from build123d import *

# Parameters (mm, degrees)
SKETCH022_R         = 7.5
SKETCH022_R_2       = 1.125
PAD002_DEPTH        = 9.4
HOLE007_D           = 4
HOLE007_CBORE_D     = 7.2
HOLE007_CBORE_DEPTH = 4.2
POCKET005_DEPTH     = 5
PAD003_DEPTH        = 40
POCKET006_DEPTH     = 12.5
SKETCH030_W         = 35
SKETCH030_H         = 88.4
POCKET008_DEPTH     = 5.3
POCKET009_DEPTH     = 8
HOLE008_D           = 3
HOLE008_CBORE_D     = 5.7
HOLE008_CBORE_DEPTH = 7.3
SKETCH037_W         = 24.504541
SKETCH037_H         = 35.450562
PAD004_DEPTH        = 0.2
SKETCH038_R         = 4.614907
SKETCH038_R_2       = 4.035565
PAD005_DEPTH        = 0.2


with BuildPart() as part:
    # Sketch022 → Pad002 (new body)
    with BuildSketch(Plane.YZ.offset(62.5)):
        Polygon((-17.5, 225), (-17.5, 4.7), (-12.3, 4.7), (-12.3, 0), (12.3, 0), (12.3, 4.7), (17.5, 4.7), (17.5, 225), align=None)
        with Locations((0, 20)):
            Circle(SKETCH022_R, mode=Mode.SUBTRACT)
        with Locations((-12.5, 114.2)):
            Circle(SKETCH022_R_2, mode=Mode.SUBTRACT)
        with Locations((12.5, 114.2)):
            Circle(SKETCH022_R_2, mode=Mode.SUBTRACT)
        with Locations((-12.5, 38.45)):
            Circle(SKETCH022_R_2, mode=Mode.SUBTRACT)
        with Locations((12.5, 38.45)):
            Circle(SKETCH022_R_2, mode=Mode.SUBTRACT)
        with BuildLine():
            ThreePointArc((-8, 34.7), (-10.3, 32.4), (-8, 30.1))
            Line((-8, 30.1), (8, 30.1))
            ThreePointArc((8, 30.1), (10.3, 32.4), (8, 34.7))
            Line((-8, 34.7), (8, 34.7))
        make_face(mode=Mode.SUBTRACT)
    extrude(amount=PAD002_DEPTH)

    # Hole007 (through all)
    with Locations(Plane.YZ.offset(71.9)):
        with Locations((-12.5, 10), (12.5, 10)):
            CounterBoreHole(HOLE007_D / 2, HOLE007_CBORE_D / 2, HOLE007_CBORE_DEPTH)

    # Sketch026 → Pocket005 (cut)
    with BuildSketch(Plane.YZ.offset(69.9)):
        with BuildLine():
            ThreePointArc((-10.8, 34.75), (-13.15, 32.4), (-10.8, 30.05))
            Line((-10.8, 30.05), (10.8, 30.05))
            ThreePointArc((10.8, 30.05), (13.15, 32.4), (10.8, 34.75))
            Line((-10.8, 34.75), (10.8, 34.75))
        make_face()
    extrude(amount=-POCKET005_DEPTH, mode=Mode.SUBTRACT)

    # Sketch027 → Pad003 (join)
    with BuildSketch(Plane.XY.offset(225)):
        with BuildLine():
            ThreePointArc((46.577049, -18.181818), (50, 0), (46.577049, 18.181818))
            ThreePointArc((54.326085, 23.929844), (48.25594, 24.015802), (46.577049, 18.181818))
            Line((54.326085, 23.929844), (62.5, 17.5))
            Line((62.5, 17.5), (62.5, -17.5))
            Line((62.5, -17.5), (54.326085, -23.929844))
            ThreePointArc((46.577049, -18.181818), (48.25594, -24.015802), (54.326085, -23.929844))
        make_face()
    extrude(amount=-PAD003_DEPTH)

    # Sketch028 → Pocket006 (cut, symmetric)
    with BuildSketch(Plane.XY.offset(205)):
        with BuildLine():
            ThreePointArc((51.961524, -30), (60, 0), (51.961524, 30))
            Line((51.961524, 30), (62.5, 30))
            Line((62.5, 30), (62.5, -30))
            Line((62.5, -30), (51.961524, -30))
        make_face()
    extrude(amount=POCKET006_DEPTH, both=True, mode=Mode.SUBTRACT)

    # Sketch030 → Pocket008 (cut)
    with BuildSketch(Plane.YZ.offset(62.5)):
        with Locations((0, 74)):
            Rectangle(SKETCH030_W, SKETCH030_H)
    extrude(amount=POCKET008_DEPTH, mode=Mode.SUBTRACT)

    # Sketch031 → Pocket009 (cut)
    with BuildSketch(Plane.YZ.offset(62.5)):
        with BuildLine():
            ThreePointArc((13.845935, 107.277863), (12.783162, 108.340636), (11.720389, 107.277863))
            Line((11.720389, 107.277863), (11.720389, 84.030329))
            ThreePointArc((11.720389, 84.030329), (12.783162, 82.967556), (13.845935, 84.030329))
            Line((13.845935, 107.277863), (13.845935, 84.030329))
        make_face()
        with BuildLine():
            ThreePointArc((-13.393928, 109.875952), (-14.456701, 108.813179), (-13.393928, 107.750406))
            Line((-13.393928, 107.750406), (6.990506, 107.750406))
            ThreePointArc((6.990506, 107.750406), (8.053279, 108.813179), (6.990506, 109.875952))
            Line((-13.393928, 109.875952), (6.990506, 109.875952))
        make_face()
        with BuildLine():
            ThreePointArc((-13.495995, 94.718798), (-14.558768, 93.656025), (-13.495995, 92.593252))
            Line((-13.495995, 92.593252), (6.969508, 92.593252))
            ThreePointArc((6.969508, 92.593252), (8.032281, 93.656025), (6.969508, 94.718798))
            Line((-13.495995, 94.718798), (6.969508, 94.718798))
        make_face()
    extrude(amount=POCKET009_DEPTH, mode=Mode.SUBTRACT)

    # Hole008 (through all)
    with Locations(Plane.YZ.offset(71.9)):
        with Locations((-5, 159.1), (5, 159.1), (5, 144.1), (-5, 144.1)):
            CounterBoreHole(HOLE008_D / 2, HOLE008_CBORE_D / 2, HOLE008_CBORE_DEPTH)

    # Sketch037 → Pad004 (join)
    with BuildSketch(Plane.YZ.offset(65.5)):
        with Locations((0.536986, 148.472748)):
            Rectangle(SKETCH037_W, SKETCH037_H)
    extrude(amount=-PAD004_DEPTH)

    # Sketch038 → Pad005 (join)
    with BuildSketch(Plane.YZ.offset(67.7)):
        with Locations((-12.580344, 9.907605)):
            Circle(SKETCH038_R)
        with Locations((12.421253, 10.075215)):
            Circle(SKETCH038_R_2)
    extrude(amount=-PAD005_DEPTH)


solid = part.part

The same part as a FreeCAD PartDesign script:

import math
import FreeCAD as App
import Part
import Sketcher

doc = App.newDocument("Part")
body = doc.addObject("PartDesign::Body", "Body")

# Sketch on YZ plane
sketch1 = doc.addObject("Sketcher::SketchObject", "Sketch")
body.addObject(sketch1)
sketch1.AttachmentSupport = (doc.YZ_Plane, [""])
sketch1.MapMode = "FlatFace"
sketch1.AttachmentOffset = App.Placement(App.Vector(0, 0, 62.5), App.Rotation())
sketch1.addGeometry(Part.LineSegment(App.Vector(-17.5, 225, 0), App.Vector(-17.5, 4.7, 0)), False)
sketch1.addGeometry(Part.LineSegment(App.Vector(-17.5, 4.7, 0), App.Vector(-12.3, 4.7, 0)), False)
sketch1.addGeometry(Part.LineSegment(App.Vector(-12.3, 4.7, 0), App.Vector(-12.3, 0, 0)), False)
sketch1.addGeometry(Part.LineSegment(App.Vector(-12.3, 0, 0), App.Vector(12.3, 0, 0)), False)
sketch1.addGeometry(Part.LineSegment(App.Vector(12.3, 0, 0), App.Vector(12.3, 4.7, 0)), False)
sketch1.addGeometry(Part.LineSegment(App.Vector(12.3, 4.7, 0), App.Vector(17.5, 4.7, 0)), False)
sketch1.addGeometry(Part.LineSegment(App.Vector(17.5, 4.7, 0), App.Vector(17.5, 225, 0)), False)
sketch1.addGeometry(Part.LineSegment(App.Vector(17.5, 225, 0), App.Vector(-17.5, 225, 0)), False)
sketch1.addGeometry(Part.Circle(App.Vector(-12.5, 38.5, 0), App.Vector(0, 0, 1), 1.1), False)
sketch1.addGeometry(Part.Circle(App.Vector(0, 20, 0), App.Vector(0, 0, 1), 7.5), False)
sketch1.addGeometry(Part.ArcOfCircle(Part.Circle(App.Vector(-8, 32.4, 0), App.Vector(0, 0, 1), 2.3), math.radians(90), math.radians(270)), False)
sketch1.addGeometry(Part.LineSegment(App.Vector(-8, 34.7, 0), App.Vector(8, 34.7, 0)), False)
sketch1.addGeometry(Part.ArcOfCircle(Part.Circle(App.Vector(8, 32.4, 0), App.Vector(0, 0, 1), 2.3), math.radians(-90), math.radians(90)), False)
sketch1.addGeometry(Part.LineSegment(App.Vector(8, 30.1, 0), App.Vector(-8, 30.1, 0)), False)
sketch1.addGeometry(Part.Circle(App.Vector(12.5, 38.5, 0), App.Vector(0, 0, 1), 1.1), False)
sketch1.addGeometry(Part.Circle(App.Vector(-12.5, 114.2, 0), App.Vector(0, 0, 1), 1.1), False)
sketch1.addGeometry(Part.Circle(App.Vector(12.5, 114.2, 0), App.Vector(0, 0, 1), 1.1), False)
sketch1.addConstraint(Sketcher.Constraint("Coincident", 0, 2, 1, 1))
sketch1.addConstraint(Sketcher.Constraint("Coincident", 1, 2, 2, 1))
sketch1.addConstraint(Sketcher.Constraint("Coincident", 2, 2, 3, 1))
sketch1.addConstraint(Sketcher.Constraint("Coincident", 3, 2, 4, 1))
sketch1.addConstraint(Sketcher.Constraint("Coincident", 4, 2, 5, 1))
sketch1.addConstraint(Sketcher.Constraint("Coincident", 5, 2, 6, 1))
sketch1.addConstraint(Sketcher.Constraint("Coincident", 6, 2, 7, 1))
sketch1.addConstraint(Sketcher.Constraint("Coincident", 7, 2, 0, 1))
sketch1.addConstraint(Sketcher.Constraint("Tangent", 10, 1, 11, 1))
sketch1.addConstraint(Sketcher.Constraint("Tangent", 11, 2, 12, 2))
sketch1.addConstraint(Sketcher.Constraint("Tangent", 12, 1, 13, 1))
sketch1.addConstraint(Sketcher.Constraint("Tangent", 13, 2, 10, 2))
sketch1.addConstraint(Sketcher.Constraint("Vertical", 0))
sketch1.addConstraint(Sketcher.Constraint("Horizontal", 1))
sketch1.addConstraint(Sketcher.Constraint("Vertical", 2))
sketch1.addConstraint(Sketcher.Constraint("Horizontal", 3))
sketch1.addConstraint(Sketcher.Constraint("Vertical", 4))
sketch1.addConstraint(Sketcher.Constraint("Horizontal", 5))
sketch1.addConstraint(Sketcher.Constraint("Vertical", 6))
sketch1.addConstraint(Sketcher.Constraint("Horizontal", 7))
sketch1.addConstraint(Sketcher.Constraint("Horizontal", 11))
sketch1.addConstraint(Sketcher.Constraint("Horizontal", 13))
sketch1.addConstraint(Sketcher.Constraint("Equal", 8, 14))
sketch1.addConstraint(Sketcher.Constraint("Equal", 14, 15))
sketch1.addConstraint(Sketcher.Constraint("Equal", 15, 16))
sketch1.addConstraint(Sketcher.Constraint("Symmetric", 2, 2, 3, 2, -1, 1))
sketch1.addConstraint(Sketcher.Constraint("Symmetric", 8, 3, 14, 3, -2))
sketch1.addConstraint(Sketcher.Constraint("Symmetric", 15, 3, 16, 3, -2))
sketch1.addConstraint(Sketcher.Constraint("Symmetric", 0, 2, 5, 2, -2))
sketch1.addConstraint(Sketcher.Constraint("PointOnObject", 9, 3, -2))
sketch1.addConstraint(Sketcher.Constraint("Vertical", 8, 3, 15, 3))
sketch1.addConstraint(Sketcher.Constraint("Diameter", 9, 15.0))
sketch1.addConstraint(Sketcher.Constraint("Radius", 10, 2.3))
sketch1.addConstraint(Sketcher.Constraint("Diameter", 8, 2.25))
sketch1.addConstraint(Sketcher.Constraint("DistanceX", 7, 2, 7, 1, 35.0))
sketch1.addConstraint(Sketcher.Constraint("DistanceX", 11, 1, 11, 2, 16.0))
sketch1.addConstraint(Sketcher.Constraint("DistanceX", 1, 1, 1, 2, 5.2))
sketch1.addConstraint(Sketcher.Constraint("DistanceY", 0, 2, 0, 1, 220.3))
sketch1.addConstraint(Sketcher.Constraint("DistanceY", 2, 2, 2, 1, 4.7))
sketch1.addConstraint(Sketcher.Constraint("DistanceY", -1, 1, 9, 3, 20.0))
sketch1.addConstraint(Sketcher.Constraint("DistanceX", 10, 3, -1, 1, 8.0))
sketch1.addConstraint(Sketcher.Constraint("DistanceX", 8, 3, 14, 3, 25.0))
sketch1.addConstraint(Sketcher.Constraint("DistanceY", -1, 1, 10, 3, 32.4))
sketch1.addConstraint(Sketcher.Constraint("DistanceY", -1, 1, 15, 3, 114.2))
sketch1.addConstraint(Sketcher.Constraint("DistanceY", -1, 1, 8, 3, 38.45))
pad1 = doc.addObject("PartDesign::Pad", "Pad")
body.addObject(pad1)
pad1.Profile = sketch1
pad1.Length = 9.4

# Sketch on YZ plane
sketch2 = doc.addObject("Sketcher::SketchObject", "Sketch001")
body.addObject(sketch2)
sketch2.AttachmentSupport = (doc.YZ_Plane, [""])
sketch2.MapMode = "FlatFace"
sketch2.AttachmentOffset = App.Placement(App.Vector(0, 0, 71.9), App.Rotation())
sketch2.addGeometry(Part.Circle(App.Vector(-12.5, 10, 0), App.Vector(0, 0, 1), 2), False)
sketch2.addGeometry(Part.Circle(App.Vector(12.5, 10, 0), App.Vector(0, 0, 1), 2), False)
sketch2.addConstraint(Sketcher.Constraint("Equal", 0, 1))
sketch2.addConstraint(Sketcher.Constraint("Symmetric", 0, 3, 1, 3, -2))
sketch2.addConstraint(Sketcher.Constraint("Diameter", 0, 4.0))
sketch2.addConstraint(Sketcher.Constraint("DistanceY", -1, 1, 0, 3, 10.0))
sketch2.addConstraint(Sketcher.Constraint("DistanceX", 0, 3, 1, 3, 25.0))
doc.recompute()
hole = doc.addObject("PartDesign::Hole", "Hole")
body.addObject(hole)
hole.Profile = sketch2
hole.ThreadType = "None"
hole.Diameter = 4
hole.DepthType = "ThroughAll"
hole.HoleCutType = "Counterbore"
hole.HoleCutDiameter = 7.2
hole.HoleCutDepth = 4.2

# Sketch on YZ plane
sketch3 = doc.addObject("Sketcher::SketchObject", "Sketch002")
body.addObject(sketch3)
sketch3.AttachmentSupport = (doc.YZ_Plane, [""])
sketch3.MapMode = "FlatFace"
sketch3.AttachmentOffset = App.Placement(App.Vector(0, 0, 69.9), App.Rotation())
sketch3.addGeometry(Part.ArcOfCircle(Part.Circle(App.Vector(-10.8, 32.4, 0), App.Vector(0, 0, 1), 2.4), math.radians(90), math.radians(270)), False)
sketch3.addGeometry(Part.LineSegment(App.Vector(-10.8, 30.1, 0), App.Vector(10.8, 30.1, 0)), False)
sketch3.addGeometry(Part.ArcOfCircle(Part.Circle(App.Vector(10.8, 32.4, 0), App.Vector(0, 0, 1), 2.4), math.radians(-90), math.radians(90)), False)
sketch3.addGeometry(Part.LineSegment(App.Vector(10.8, 34.8, 0), App.Vector(-10.8, 34.8, 0)), False)
sketch3.addConstraint(Sketcher.Constraint("Tangent", 0, 2, 1, 1))
sketch3.addConstraint(Sketcher.Constraint("Tangent", 1, 2, 2, 1))
sketch3.addConstraint(Sketcher.Constraint("Tangent", 2, 2, 3, 1))
sketch3.addConstraint(Sketcher.Constraint("Tangent", 3, 2, 0, 1))
sketch3.addConstraint(Sketcher.Constraint("Horizontal", 1))
sketch3.addConstraint(Sketcher.Constraint("Horizontal", 3))
sketch3.addConstraint(Sketcher.Constraint("Radius", 0, 2.35))
sketch3.addConstraint(Sketcher.Constraint("DistanceX", 1, 1, 1, 2, 21.6))
sketch3.addConstraint(Sketcher.Constraint("DistanceX", 0, 3, -1, 1, 10.8))
sketch3.addConstraint(Sketcher.Constraint("DistanceY", -1, 1, 0, 3, 32.4))
pocket1 = doc.addObject("PartDesign::Pocket", "Pocket")
body.addObject(pocket1)
pocket1.Profile = sketch3
pocket1.Length = 5

# Sketch on XY plane
sketch4 = doc.addObject("Sketcher::SketchObject", "Sketch003")
body.addObject(sketch4)
sketch4.AttachmentSupport = (doc.XY_Plane, [""])
sketch4.MapMode = "FlatFace"
sketch4.AttachmentOffset = App.Placement(App.Vector(0, 0, 225), App.Rotation())
sketch4.addGeometry(Part.ArcOfCircle(Part.Circle(App.Vector(0, 0, 0), App.Vector(0, 0, 1), 50), math.radians(-21), math.radians(21)), False)
sketch4.addGeometry(Part.ArcOfCircle(Part.Circle(App.Vector(51, -20, 0), App.Vector(0, 0, 1), 5), math.radians(159), math.radians(308)), False)
sketch4.addGeometry(Part.LineSegment(App.Vector(54, -24, 0), App.Vector(62, -18, 0)), False)
sketch4.addGeometry(Part.LineSegment(App.Vector(62, -18, 0), App.Vector(62, 18, 0)), False)
sketch4.addGeometry(Part.LineSegment(App.Vector(62, 18, 0), App.Vector(54, 24, 0)), False)
sketch4.addGeometry(Part.ArcOfCircle(Part.Circle(App.Vector(51, 20, 0), App.Vector(0, 0, 1), 5), math.radians(52), math.radians(201)), False)
sketch4.addConstraint(Sketcher.Constraint("Tangent", 0, 1, 1, 1))
sketch4.addConstraint(Sketcher.Constraint("Tangent", 1, 2, 2, 1))
sketch4.addConstraint(Sketcher.Constraint("Coincident", 2, 2, 3, 1))
sketch4.addConstraint(Sketcher.Constraint("Coincident", 3, 2, 4, 1))
sketch4.addConstraint(Sketcher.Constraint("Tangent", 4, 2, 5, 1))
sketch4.addConstraint(Sketcher.Constraint("Tangent", 5, 2, 0, 2))
sketch4.addConstraint(Sketcher.Constraint("Vertical", 3))
sketch4.addConstraint(Sketcher.Constraint("Coincident", 0, 3, -1, 1))
sketch4.addConstraint(Sketcher.Constraint("Equal", 1, 5))
sketch4.addConstraint(Sketcher.Constraint("Symmetric", 1, 2, 4, 2, -1))
sketch4.addConstraint(Sketcher.Constraint("Radius", 0, 50.0))
sketch4.addConstraint(Sketcher.Constraint("Radius", 1, 5.0))
sketch4.addConstraint(Sketcher.Constraint("DistanceY", 3, 1, 3, 2, 35.0))
sketch4.addConstraint(Sketcher.Constraint("DistanceY", 1, 3, -1, 1, 20.0))
sketch4.addConstraint(Sketcher.Constraint("DistanceX", -1, 1, 2, 2, 62.5))
pad2 = doc.addObject("PartDesign::Pad", "Pad001")
body.addObject(pad2)
pad2.Profile = sketch4
pad2.Length = 40
pad2.Reversed = True

# Sketch on XY plane
sketch5 = doc.addObject("Sketcher::SketchObject", "Sketch004")
body.addObject(sketch5)
sketch5.AttachmentSupport = (doc.XY_Plane, [""])
sketch5.MapMode = "FlatFace"
sketch5.AttachmentOffset = App.Placement(App.Vector(0, 0, 205), App.Rotation())
sketch5.addGeometry(Part.ArcOfCircle(Part.Circle(App.Vector(0, 0, 0), App.Vector(0, 0, 1), 60), math.radians(-30), math.radians(30)), False)
sketch5.addGeometry(Part.LineSegment(App.Vector(52, -30, 0), App.Vector(62, -30, 0)), False)
sketch5.addGeometry(Part.LineSegment(App.Vector(62, -30, 0), App.Vector(62, 30, 0)), False)
sketch5.addGeometry(Part.LineSegment(App.Vector(62, 30, 0), App.Vector(52, 30, 0)), False)
sketch5.addConstraint(Sketcher.Constraint("Coincident", 0, 1, 1, 1))
sketch5.addConstraint(Sketcher.Constraint("Coincident", 1, 2, 2, 1))
sketch5.addConstraint(Sketcher.Constraint("Coincident", 2, 2, 3, 1))
sketch5.addConstraint(Sketcher.Constraint("Coincident", 3, 2, 0, 2))
sketch5.addConstraint(Sketcher.Constraint("Horizontal", 1))
sketch5.addConstraint(Sketcher.Constraint("Vertical", 2))
sketch5.addConstraint(Sketcher.Constraint("Horizontal", 3))
sketch5.addConstraint(Sketcher.Constraint("Coincident", 0, 3, -1, 1))
sketch5.addConstraint(Sketcher.Constraint("Vertical", 0, 1, 3, 2))
sketch5.addConstraint(Sketcher.Constraint("Radius", 0, 59.999999))
sketch5.addConstraint(Sketcher.Constraint("DistanceY", 2, 1, 2, 2, 60.0))
sketch5.addConstraint(Sketcher.Constraint("DistanceX", -1, 1, 1, 2, 62.5))
pocket2 = doc.addObject("PartDesign::Pocket", "Pocket001")
body.addObject(pocket2)
pocket2.Profile = sketch5
pocket2.Length = 25
pocket2.Midplane = True

# Sketch on YZ plane
sketch6 = doc.addObject("Sketcher::SketchObject", "Sketch005")
body.addObject(sketch6)
sketch6.AttachmentSupport = (doc.YZ_Plane, [""])
sketch6.MapMode = "FlatFace"
sketch6.AttachmentOffset = App.Placement(App.Vector(0, 0, 62.5), App.Rotation())
sketch6.addGeometry(Part.LineSegment(App.Vector(-18, 118, 0), App.Vector(-18, 30, 0)), False)
sketch6.addGeometry(Part.LineSegment(App.Vector(-18, 30, 0), App.Vector(18, 30, 0)), False)
sketch6.addGeometry(Part.LineSegment(App.Vector(18, 30, 0), App.Vector(18, 118, 0)), False)
sketch6.addGeometry(Part.LineSegment(App.Vector(18, 118, 0), App.Vector(-18, 118, 0)), False)
sketch6.addConstraint(Sketcher.Constraint("Coincident", 0, 2, 1, 1))
sketch6.addConstraint(Sketcher.Constraint("Coincident", 1, 2, 2, 1))
sketch6.addConstraint(Sketcher.Constraint("Coincident", 2, 2, 3, 1))
sketch6.addConstraint(Sketcher.Constraint("Coincident", 3, 2, 0, 1))
sketch6.addConstraint(Sketcher.Constraint("Vertical", 0))
sketch6.addConstraint(Sketcher.Constraint("Horizontal", 1))
sketch6.addConstraint(Sketcher.Constraint("Vertical", 2))
sketch6.addConstraint(Sketcher.Constraint("Horizontal", 3))
sketch6.addConstraint(Sketcher.Constraint("DistanceX", 1, 1, 1, 2, 35.0))
sketch6.addConstraint(Sketcher.Constraint("DistanceY", 0, 2, 0, 1, 88.4))
sketch6.addConstraint(Sketcher.Constraint("DistanceX", 0, 2, -1, 1, 17.5))
sketch6.addConstraint(Sketcher.Constraint("DistanceY", -1, 1, 0, 2, 29.8))
pocket3 = doc.addObject("PartDesign::Pocket", "Pocket002")
body.addObject(pocket3)
pocket3.Profile = sketch6
pocket3.Length = 5.3
pocket3.Reversed = True

# Sketch on YZ plane
sketch7 = doc.addObject("Sketcher::SketchObject", "Sketch006")
body.addObject(sketch7)
sketch7.AttachmentSupport = (doc.YZ_Plane, [""])
sketch7.MapMode = "FlatFace"
sketch7.AttachmentOffset = App.Placement(App.Vector(0, 0, 62.5), App.Rotation())
sketch7.addGeometry(Part.ArcOfCircle(Part.Circle(App.Vector(12.8, 107.3, 0), App.Vector(0, 0, 1), 1.1), math.radians(0), math.radians(180)), False)
sketch7.addGeometry(Part.LineSegment(App.Vector(11.7, 107.3, 0), App.Vector(11.7, 84, 0)), False)
sketch7.addGeometry(Part.ArcOfCircle(Part.Circle(App.Vector(12.8, 84, 0), App.Vector(0, 0, 1), 1.1), math.radians(180), math.radians(360)), False)
sketch7.addGeometry(Part.LineSegment(App.Vector(13.8, 84, 0), App.Vector(13.8, 107.3, 0)), False)
sketch7.addGeometry(Part.ArcOfCircle(Part.Circle(App.Vector(-13.4, 108.8, 0), App.Vector(0, 0, 1), 1.1), math.radians(90), math.radians(270)), False)
sketch7.addGeometry(Part.LineSegment(App.Vector(-13.4, 107.8, 0), App.Vector(7, 107.8, 0)), False)
sketch7.addGeometry(Part.ArcOfCircle(Part.Circle(App.Vector(7, 108.8, 0), App.Vector(0, 0, 1), 1.1), math.radians(-90), math.radians(90)), False)
sketch7.addGeometry(Part.LineSegment(App.Vector(7, 109.9, 0), App.Vector(-13.4, 109.9, 0)), False)
sketch7.addGeometry(Part.ArcOfCircle(Part.Circle(App.Vector(-13.5, 93.7, 0), App.Vector(0, 0, 1), 1.1), math.radians(90), math.radians(270)), False)
sketch7.addGeometry(Part.LineSegment(App.Vector(-13.5, 92.6, 0), App.Vector(7, 92.6, 0)), False)
sketch7.addGeometry(Part.ArcOfCircle(Part.Circle(App.Vector(7, 93.7, 0), App.Vector(0, 0, 1), 1.1), math.radians(-90), math.radians(90)), False)
sketch7.addGeometry(Part.LineSegment(App.Vector(7, 94.7, 0), App.Vector(-13.5, 94.7, 0)), False)
sketch7.addConstraint(Sketcher.Constraint("Tangent", 0, 2, 1, 1))
sketch7.addConstraint(Sketcher.Constraint("Tangent", 1, 2, 2, 1))
sketch7.addConstraint(Sketcher.Constraint("Tangent", 2, 2, 3, 1))
sketch7.addConstraint(Sketcher.Constraint("Tangent", 3, 2, 0, 1))
sketch7.addConstraint(Sketcher.Constraint("Tangent", 4, 2, 5, 1))
sketch7.addConstraint(Sketcher.Constraint("Tangent", 5, 2, 6, 1))
sketch7.addConstraint(Sketcher.Constraint("Tangent", 6, 2, 7, 1))
sketch7.addConstraint(Sketcher.Constraint("Tangent", 7, 2, 4, 1))
sketch7.addConstraint(Sketcher.Constraint("Tangent", 8, 2, 9, 1))
sketch7.addConstraint(Sketcher.Constraint("Tangent", 9, 2, 10, 1))
sketch7.addConstraint(Sketcher.Constraint("Tangent", 10, 2, 11, 1))
sketch7.addConstraint(Sketcher.Constraint("Tangent", 11, 2, 8, 1))
sketch7.addConstraint(Sketcher.Constraint("Vertical", 1))
sketch7.addConstraint(Sketcher.Constraint("Vertical", 3))
sketch7.addConstraint(Sketcher.Constraint("Horizontal", 5))
sketch7.addConstraint(Sketcher.Constraint("Horizontal", 7))
sketch7.addConstraint(Sketcher.Constraint("Horizontal", 9))
sketch7.addConstraint(Sketcher.Constraint("Horizontal", 11))
sketch7.addConstraint(Sketcher.Constraint("Equal", 2, 4))
sketch7.addConstraint(Sketcher.Constraint("Equal", 6, 8))
sketch7.addConstraint(Sketcher.Constraint("Radius", 0, 1.062773))
sketch7.addConstraint(Sketcher.Constraint("DistanceY", -1, 1, 11, 2, 94.718798))
sketch7.addConstraint(Sketcher.Constraint("DistanceX", 8, 3, 6, 3, 20.486501))
sketch7.addConstraint(Sketcher.Constraint("DistanceY", 8, 2, 7, 2, 17.2827))
sketch7.addConstraint(Sketcher.Constraint("DistanceX", 5, 1, 5, 2, 20.384434))
sketch7.addConstraint(Sketcher.Constraint("DistanceX", 9, 1, 9, 2, 20.465503))
sketch7.addConstraint(Sketcher.Constraint("DistanceY", 1, 2, 1, 1, 23.247534))
sketch7.addConstraint(Sketcher.Constraint("DistanceY", -1, 1, 2, 3, 84.030329))
sketch7.addConstraint(Sketcher.Constraint("DistanceX", 4, 3, -1, 1, 13.393928))
sketch7.addConstraint(Sketcher.Constraint("DistanceX", -1, 1, 0, 2, 11.720389))
pocket4 = doc.addObject("PartDesign::Pocket", "Pocket003")
body.addObject(pocket4)
pocket4.Profile = sketch7
pocket4.Length = 8
pocket4.Reversed = True

# Sketch on YZ plane
sketch8 = doc.addObject("Sketcher::SketchObject", "Sketch007")
body.addObject(sketch8)
sketch8.AttachmentSupport = (doc.YZ_Plane, [""])
sketch8.MapMode = "FlatFace"
sketch8.AttachmentOffset = App.Placement(App.Vector(0, 0, 71.9), App.Rotation())
sketch8.addGeometry(Part.Circle(App.Vector(-5, 159.1, 0), App.Vector(0, 0, 1), 1.5), False)
sketch8.addGeometry(Part.Circle(App.Vector(5, 159.1, 0), App.Vector(0, 0, 1), 1.5), False)
sketch8.addGeometry(Part.Circle(App.Vector(5, 144.1, 0), App.Vector(0, 0, 1), 1.5), False)
sketch8.addGeometry(Part.Circle(App.Vector(-5, 144.1, 0), App.Vector(0, 0, 1), 1.5), False)
sketch8.addConstraint(Sketcher.Constraint("Equal", 0, 1))
sketch8.addConstraint(Sketcher.Constraint("Equal", 1, 2))
sketch8.addConstraint(Sketcher.Constraint("Equal", 2, 3))
sketch8.addConstraint(Sketcher.Constraint("Symmetric", 0, 3, 1, 3, -2))
sketch8.addConstraint(Sketcher.Constraint("Symmetric", 2, 3, 3, 3, -2))
sketch8.addConstraint(Sketcher.Constraint("Vertical", 1, 3, 2, 3))
sketch8.addConstraint(Sketcher.Constraint("Diameter", 0, 3.0))
sketch8.addConstraint(Sketcher.Constraint("DistanceX", 0, 3, -1, 1, 5.0))
sketch8.addConstraint(Sketcher.Constraint("DistanceY", 2, 3, 1, 3, 15.0))
sketch8.addConstraint(Sketcher.Constraint("DistanceY", -1, 1, 0, 3, 159.1))
doc.recompute()
hole2 = doc.addObject("PartDesign::Hole", "Hole001")
body.addObject(hole2)
hole2.Profile = sketch8
hole2.ThreadType = "None"
hole2.Diameter = 3
hole2.DepthType = "ThroughAll"
hole2.HoleCutType = "Counterbore"
hole2.HoleCutDiameter = 5.7
hole2.HoleCutDepth = 7.3

# Sketch on YZ plane
sketch9 = doc.addObject("Sketcher::SketchObject", "Sketch008")
body.addObject(sketch9)
sketch9.AttachmentSupport = (doc.YZ_Plane, [""])
sketch9.MapMode = "FlatFace"
sketch9.AttachmentOffset = App.Placement(App.Vector(0, 0, 65.5), App.Rotation())
sketch9.addGeometry(Part.LineSegment(App.Vector(-12, 166, 0), App.Vector(-12, 131, 0)), False)
sketch9.addGeometry(Part.LineSegment(App.Vector(-12, 131, 0), App.Vector(13, 131, 0)), False)
sketch9.addGeometry(Part.LineSegment(App.Vector(13, 131, 0), App.Vector(13, 166, 0)), False)
sketch9.addGeometry(Part.LineSegment(App.Vector(13, 166, 0), App.Vector(-12, 166, 0)), False)
sketch9.addConstraint(Sketcher.Constraint("Coincident", 0, 2, 1, 1))
sketch9.addConstraint(Sketcher.Constraint("Coincident", 1, 2, 2, 1))
sketch9.addConstraint(Sketcher.Constraint("Coincident", 2, 2, 3, 1))
sketch9.addConstraint(Sketcher.Constraint("Coincident", 3, 2, 0, 1))
sketch9.addConstraint(Sketcher.Constraint("Vertical", 0))
sketch9.addConstraint(Sketcher.Constraint("Horizontal", 1))
sketch9.addConstraint(Sketcher.Constraint("Vertical", 2))
sketch9.addConstraint(Sketcher.Constraint("Horizontal", 3))
sketch9.addConstraint(Sketcher.Constraint("DistanceX", 1, 1, 1, 2, 24.504541))
sketch9.addConstraint(Sketcher.Constraint("DistanceY", 0, 2, 0, 1, 35.450562))
sketch9.addConstraint(Sketcher.Constraint("DistanceY", -1, 1, 2, 2, 166.198029))
sketch9.addConstraint(Sketcher.Constraint("DistanceX", 0, 2, -1, 1, 11.715284))
pad3 = doc.addObject("PartDesign::Pad", "Pad002")
body.addObject(pad3)
pad3.Profile = sketch9
pad3.Length = 0.2
pad3.Reversed = True

# Sketch on YZ plane
sketch10 = doc.addObject("Sketcher::SketchObject", "Sketch009")
body.addObject(sketch10)
sketch10.AttachmentSupport = (doc.YZ_Plane, [""])
sketch10.MapMode = "FlatFace"
sketch10.AttachmentOffset = App.Placement(App.Vector(0, 0, 67.7), App.Rotation())
sketch10.addGeometry(Part.Circle(App.Vector(-12.6, 9.9, 0), App.Vector(0, 0, 1), 4.6), False)
sketch10.addGeometry(Part.Circle(App.Vector(12.4, 10.1, 0), App.Vector(0, 0, 1), 4), False)
sketch10.addConstraint(Sketcher.Constraint("Diameter", 1, 8.07113))
sketch10.addConstraint(Sketcher.Constraint("Diameter", 0, 9.229814))
sketch10.addConstraint(Sketcher.Constraint("DistanceY", 0, 3, 1, 3, 0.16761))
sketch10.addConstraint(Sketcher.Constraint("DistanceX", 0, 3, -1, 1, 12.580344))
sketch10.addConstraint(Sketcher.Constraint("DistanceY", -1, 1, 0, 3, 9.907605))
sketch10.addConstraint(Sketcher.Constraint("DistanceX", -1, 1, 1, 3, 12.421253))
pad4 = doc.addObject("PartDesign::Pad", "Pad003")
body.addObject(pad4)
pad4.Profile = sketch10
pad4.Length = 0.2
pad4.Reversed = True

doc.recompute()
